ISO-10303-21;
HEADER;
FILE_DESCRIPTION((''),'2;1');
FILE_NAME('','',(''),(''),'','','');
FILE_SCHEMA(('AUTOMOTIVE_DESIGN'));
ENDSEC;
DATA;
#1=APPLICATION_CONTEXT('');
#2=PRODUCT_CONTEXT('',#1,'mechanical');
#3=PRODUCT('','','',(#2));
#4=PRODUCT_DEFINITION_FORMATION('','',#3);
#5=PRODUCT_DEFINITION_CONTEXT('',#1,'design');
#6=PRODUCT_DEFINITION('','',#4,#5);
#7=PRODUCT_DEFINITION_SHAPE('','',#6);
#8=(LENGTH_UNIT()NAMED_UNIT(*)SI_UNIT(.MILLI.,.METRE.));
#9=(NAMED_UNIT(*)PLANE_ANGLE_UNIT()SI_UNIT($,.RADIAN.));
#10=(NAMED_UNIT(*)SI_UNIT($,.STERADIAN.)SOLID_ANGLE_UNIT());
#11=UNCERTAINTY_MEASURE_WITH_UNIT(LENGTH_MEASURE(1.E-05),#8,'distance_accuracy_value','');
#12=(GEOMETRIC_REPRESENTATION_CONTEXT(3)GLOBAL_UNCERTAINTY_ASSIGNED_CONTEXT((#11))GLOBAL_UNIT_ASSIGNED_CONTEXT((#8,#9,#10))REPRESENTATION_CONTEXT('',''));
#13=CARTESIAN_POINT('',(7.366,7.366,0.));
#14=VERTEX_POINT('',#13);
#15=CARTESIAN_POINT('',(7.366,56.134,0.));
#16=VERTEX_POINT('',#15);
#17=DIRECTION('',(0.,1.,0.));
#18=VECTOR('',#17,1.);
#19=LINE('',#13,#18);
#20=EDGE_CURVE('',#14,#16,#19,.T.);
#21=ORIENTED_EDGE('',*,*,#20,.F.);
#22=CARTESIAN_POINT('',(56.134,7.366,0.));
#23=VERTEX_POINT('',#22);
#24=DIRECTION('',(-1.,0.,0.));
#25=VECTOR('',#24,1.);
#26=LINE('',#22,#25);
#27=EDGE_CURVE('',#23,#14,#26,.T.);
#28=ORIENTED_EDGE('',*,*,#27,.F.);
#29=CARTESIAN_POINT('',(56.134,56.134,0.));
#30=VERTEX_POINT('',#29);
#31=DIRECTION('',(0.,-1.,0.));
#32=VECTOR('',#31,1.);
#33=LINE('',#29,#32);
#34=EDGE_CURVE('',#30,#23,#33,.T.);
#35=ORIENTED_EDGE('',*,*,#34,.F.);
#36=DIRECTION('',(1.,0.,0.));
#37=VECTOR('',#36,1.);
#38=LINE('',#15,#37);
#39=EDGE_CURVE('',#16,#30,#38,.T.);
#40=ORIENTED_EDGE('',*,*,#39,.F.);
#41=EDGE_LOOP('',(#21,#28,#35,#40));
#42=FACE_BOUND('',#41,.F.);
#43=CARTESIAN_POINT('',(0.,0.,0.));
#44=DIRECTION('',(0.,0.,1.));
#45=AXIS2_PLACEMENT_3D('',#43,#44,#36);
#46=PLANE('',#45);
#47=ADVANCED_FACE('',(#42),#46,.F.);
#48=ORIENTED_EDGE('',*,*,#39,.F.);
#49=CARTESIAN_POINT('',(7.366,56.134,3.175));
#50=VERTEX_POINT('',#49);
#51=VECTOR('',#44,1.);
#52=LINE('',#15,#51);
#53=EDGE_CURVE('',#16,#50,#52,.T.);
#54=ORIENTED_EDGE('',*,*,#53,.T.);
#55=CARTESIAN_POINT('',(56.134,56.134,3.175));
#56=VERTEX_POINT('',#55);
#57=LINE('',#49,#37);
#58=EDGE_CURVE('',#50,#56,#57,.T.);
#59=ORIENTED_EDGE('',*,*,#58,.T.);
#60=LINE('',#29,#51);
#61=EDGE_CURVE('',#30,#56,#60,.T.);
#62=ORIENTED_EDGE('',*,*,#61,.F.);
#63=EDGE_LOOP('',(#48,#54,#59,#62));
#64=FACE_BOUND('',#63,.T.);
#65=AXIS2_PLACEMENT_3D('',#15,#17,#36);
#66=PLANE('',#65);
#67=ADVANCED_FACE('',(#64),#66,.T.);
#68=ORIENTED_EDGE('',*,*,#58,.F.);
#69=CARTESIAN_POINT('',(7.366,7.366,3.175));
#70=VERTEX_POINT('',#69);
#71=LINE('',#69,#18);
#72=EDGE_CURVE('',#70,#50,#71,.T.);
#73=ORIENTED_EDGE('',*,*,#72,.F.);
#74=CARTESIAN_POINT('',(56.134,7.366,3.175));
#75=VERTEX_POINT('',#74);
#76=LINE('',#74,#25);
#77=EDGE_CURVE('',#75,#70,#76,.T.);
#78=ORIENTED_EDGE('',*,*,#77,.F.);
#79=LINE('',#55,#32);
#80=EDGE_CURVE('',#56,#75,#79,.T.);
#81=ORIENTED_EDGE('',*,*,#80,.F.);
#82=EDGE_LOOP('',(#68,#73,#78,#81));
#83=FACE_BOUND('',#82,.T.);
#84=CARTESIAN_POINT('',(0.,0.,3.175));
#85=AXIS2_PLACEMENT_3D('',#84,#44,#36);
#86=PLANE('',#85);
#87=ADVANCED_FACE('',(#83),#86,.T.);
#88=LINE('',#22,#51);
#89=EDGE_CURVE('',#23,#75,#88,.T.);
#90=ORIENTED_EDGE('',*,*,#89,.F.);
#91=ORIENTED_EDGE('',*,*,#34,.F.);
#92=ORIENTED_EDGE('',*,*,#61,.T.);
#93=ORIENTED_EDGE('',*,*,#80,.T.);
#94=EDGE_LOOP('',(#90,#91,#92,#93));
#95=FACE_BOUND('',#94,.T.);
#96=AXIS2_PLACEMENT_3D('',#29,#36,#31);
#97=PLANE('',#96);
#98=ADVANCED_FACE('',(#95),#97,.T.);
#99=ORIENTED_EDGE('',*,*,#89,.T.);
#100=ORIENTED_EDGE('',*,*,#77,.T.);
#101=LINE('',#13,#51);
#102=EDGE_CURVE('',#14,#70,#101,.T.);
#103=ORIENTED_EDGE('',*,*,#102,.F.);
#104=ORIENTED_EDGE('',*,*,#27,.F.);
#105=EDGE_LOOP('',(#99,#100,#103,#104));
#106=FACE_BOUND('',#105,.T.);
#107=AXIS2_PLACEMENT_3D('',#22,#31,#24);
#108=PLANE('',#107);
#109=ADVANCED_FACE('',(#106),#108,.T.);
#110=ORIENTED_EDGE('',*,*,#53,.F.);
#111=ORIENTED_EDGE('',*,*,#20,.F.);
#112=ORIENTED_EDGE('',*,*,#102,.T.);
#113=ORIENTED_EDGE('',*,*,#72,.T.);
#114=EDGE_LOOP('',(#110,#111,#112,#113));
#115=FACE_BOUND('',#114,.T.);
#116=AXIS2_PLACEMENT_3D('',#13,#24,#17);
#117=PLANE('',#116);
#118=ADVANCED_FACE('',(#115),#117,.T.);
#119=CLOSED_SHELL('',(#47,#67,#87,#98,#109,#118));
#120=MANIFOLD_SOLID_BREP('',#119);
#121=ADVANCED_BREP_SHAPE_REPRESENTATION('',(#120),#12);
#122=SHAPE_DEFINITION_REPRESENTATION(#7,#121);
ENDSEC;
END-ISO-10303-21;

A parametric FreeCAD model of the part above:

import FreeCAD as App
import Part
import Sketcher
from FreeCAD import Vector
Q = App.Units.Quantity

doc = App.newDocument("Part")
params = doc.addObject("Spreadsheet::Sheet", "Params")
for row, (alias, value) in enumerate([
    ("sketch1_width", "1.92 in"),
    ("pad1_length", "0.125 in"),
], start=1):
    params.set(f"A{row}", alias)
    params.set(f"B{row}", "=" + value)
    params.setAlias(f"B{row}", alias)

body = doc.addObject("PartDesign::Body", "Body")

# Sketch on XY plane
sketch1 = doc.addObject("Sketcher::SketchObject", "Sketch")
body.addObject(sketch1)
sketch1.AttachmentSupport = (doc.XY_Plane, [""])
sketch1.MapMode = "FlatFace"
sketch1.addGeometry([
    Part.LineSegment(Vector(7, 56, 0), Vector(7, 7, 0)),
    Part.LineSegment(Vector(7, 7, 0), Vector(56, 7, 0)),
    Part.LineSegment(Vector(56, 7, 0), Vector(56, 56, 0)),
    Part.LineSegment(Vector(56, 56, 0), Vector(7, 56, 0)),
], False)
sketch1.addConstraint([
    Sketcher.Constraint("Coincident", 0, 2, 1, 1),
    Sketcher.Constraint("Coincident", 1, 2, 2, 1),
    Sketcher.Constraint("Coincident", 2, 2, 3, 1),
    Sketcher.Constraint("Coincident", 3, 2, 0, 1),
    Sketcher.Constraint("Vertical", 0),
    Sketcher.Constraint("Horizontal", 1),
    Sketcher.Constraint("Vertical", 2),
    Sketcher.Constraint("Horizontal", 3),
    Sketcher.Constraint("Equal", 3, 0),
    Sketcher.Constraint("DistanceX", 1, 1, 1, 2, Q("1.92 in")),
    Sketcher.Constraint("DistanceX", -1, 1, 0, 2, Q("0.29 in")),
    Sketcher.Constraint("DistanceY", -1, 1, 0, 2, Q("0.29 in")),
])
sketch1.setExpression("Constraints[9]", "Params.sketch1_width")
pad1 = doc.addObject("PartDesign::Pad", "Pad")
body.addObject(pad1)
pad1.Profile = sketch1
pad1.setExpression("Length", "Params.pad1_length")

doc.recompute()
